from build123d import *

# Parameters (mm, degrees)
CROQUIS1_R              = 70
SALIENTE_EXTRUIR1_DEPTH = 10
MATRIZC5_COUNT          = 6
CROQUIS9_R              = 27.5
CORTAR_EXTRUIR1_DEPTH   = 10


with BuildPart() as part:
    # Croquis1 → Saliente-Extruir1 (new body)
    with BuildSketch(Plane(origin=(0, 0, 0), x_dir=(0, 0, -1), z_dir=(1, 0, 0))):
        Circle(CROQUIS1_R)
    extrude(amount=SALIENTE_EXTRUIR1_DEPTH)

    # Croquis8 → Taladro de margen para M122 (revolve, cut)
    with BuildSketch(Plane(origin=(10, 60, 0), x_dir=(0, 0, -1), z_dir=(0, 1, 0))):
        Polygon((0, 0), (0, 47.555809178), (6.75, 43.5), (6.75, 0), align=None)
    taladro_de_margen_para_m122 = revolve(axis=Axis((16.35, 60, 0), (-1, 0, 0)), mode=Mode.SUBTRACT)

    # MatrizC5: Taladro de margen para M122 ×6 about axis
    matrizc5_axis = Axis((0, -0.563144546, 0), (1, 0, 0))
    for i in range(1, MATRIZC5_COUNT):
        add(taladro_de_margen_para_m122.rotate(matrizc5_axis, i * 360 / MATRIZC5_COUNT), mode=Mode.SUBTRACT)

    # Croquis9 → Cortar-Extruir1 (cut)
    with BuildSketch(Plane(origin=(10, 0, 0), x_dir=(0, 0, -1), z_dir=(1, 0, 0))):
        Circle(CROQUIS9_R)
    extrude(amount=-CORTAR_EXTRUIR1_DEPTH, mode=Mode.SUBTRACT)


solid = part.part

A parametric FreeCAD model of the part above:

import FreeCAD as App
import Part
import Sketcher
Q = App.Units.Quantity

doc = App.newDocument("Part")
body = doc.addObject("PartDesign::Body", "Body")

# Sketch on YZ plane
sketch1 = doc.addObject("Sketcher::SketchObject", "Sketch")
body.addObject(sketch1)
sketch1.AttachmentSupport = (doc.YZ_Plane, [""])
sketch1.MapMode = "FlatFace"
sketch1.addGeometry(Part.Circle(App.Vector(0, 0, 0), App.Vector(0, 0, 1), 70), False)
sketch1.addConstraint([
    Sketcher.Constraint("Coincident", 0, 3, -1, 1),
    Sketcher.Constraint("Diameter", 0, Q("140 mm")),
])
pad1 = doc.addObject("PartDesign::Pad", "Pad")
body.addObject(pad1)
pad1.Profile = sketch1
pad1.Length = 10

# Sketch on XZ plane
sketch2 = doc.addObject("Sketcher::SketchObject", "Sketch001")
body.addObject(sketch2)
sketch2.AttachmentSupport = (doc.XZ_Plane, [""])
sketch2.MapMode = "FlatFace"
sketch2.AttachmentOffset = App.Placement(App.Vector(0, 0, -60), App.Rotation())
sketch2.addGeometry([
    Part.LineSegment(App.Vector(-38, 0, 0), App.Vector(10, 0, 0)),
    Part.LineSegment(App.Vector(10, 0, 0), App.Vector(10, -7, 0)),
    Part.LineSegment(App.Vector(10, -7, 0), App.Vector(-34, -7, 0)),
    Part.LineSegment(App.Vector(-34, -7, 0), App.Vector(-38, 0, 0)),
], False)
sketch2.addConstraint([
    Sketcher.Constraint("Coincident", 0, 2, 1, 1),
    Sketcher.Constraint("Coincident", 1, 2, 2, 1),
    Sketcher.Constraint("Coincident", 2, 2, 3, 1),
    Sketcher.Constraint("Coincident", 3, 2, 0, 1),
    Sketcher.Constraint("Horizontal", 0),
    Sketcher.Constraint("Vertical", 1),
    Sketcher.Constraint("Horizontal", 2),
    Sketcher.Constraint("PointOnObject", 0, 2, -1),
    Sketcher.Constraint("Angle", 3, Q("121 deg")),
    Sketcher.Constraint("DistanceX", 2, 2, 2, 1, Q("43.5 mm")),
    Sketcher.Constraint("DistanceX", -1, 1, 0, 2, Q("10 mm")),
    Sketcher.Constraint("DistanceY", 1, 2, 1, 1, Q("6.75 mm")),
])
groove = doc.addObject("PartDesign::Groove", "Groove")
body.addObject(groove)
groove.Profile = sketch2
groove.ReferenceAxis = (sketch2, ["H_Axis"])
groove.Angle = 360
doc.recompute()

datumline = doc.addObject("PartDesign::Line", "DatumLine")
body.addObject(datumline)
datumline.Placement = App.Placement(App.Vector(0, -0.563145, 0), App.Rotation(App.Vector(0, 0, 1), App.Vector(1, 0, 0)))
polarpattern = doc.addObject("PartDesign::PolarPattern", "PolarPattern")
body.addObject(polarpattern)
polarpattern.Originals = [groove]
polarpattern.Axis = (datumline, [""])
polarpattern.Angle = 360
polarpattern.Occurrences = 6
body.Tip = polarpattern

# Sketch on YZ plane
sketch3 = doc.addObject("Sketcher::SketchObject", "Sketch002")
body.addObject(sketch3)
sketch3.AttachmentSupport = (doc.YZ_Plane, [""])
sketch3.MapMode = "FlatFace"
sketch3.AttachmentOffset = App.Placement(App.Vector(0, 0, 10), App.Rotation())
sketch3.addGeometry(Part.Circle(App.Vector(0, 0, 0), App.Vector(0, 0, 1), 28), False)
sketch3.addConstraint([
    Sketcher.Constraint("Coincident", 0, 3, -1, 1),
    Sketcher.Constraint("Diameter", 0, Q("55 mm")),
])
pocket1 = doc.addObject("PartDesign::Pocket", "Pocket")
body.addObject(pocket1)
pocket1.Profile = sketch3
pocket1.Length = 10

doc.recompute()
